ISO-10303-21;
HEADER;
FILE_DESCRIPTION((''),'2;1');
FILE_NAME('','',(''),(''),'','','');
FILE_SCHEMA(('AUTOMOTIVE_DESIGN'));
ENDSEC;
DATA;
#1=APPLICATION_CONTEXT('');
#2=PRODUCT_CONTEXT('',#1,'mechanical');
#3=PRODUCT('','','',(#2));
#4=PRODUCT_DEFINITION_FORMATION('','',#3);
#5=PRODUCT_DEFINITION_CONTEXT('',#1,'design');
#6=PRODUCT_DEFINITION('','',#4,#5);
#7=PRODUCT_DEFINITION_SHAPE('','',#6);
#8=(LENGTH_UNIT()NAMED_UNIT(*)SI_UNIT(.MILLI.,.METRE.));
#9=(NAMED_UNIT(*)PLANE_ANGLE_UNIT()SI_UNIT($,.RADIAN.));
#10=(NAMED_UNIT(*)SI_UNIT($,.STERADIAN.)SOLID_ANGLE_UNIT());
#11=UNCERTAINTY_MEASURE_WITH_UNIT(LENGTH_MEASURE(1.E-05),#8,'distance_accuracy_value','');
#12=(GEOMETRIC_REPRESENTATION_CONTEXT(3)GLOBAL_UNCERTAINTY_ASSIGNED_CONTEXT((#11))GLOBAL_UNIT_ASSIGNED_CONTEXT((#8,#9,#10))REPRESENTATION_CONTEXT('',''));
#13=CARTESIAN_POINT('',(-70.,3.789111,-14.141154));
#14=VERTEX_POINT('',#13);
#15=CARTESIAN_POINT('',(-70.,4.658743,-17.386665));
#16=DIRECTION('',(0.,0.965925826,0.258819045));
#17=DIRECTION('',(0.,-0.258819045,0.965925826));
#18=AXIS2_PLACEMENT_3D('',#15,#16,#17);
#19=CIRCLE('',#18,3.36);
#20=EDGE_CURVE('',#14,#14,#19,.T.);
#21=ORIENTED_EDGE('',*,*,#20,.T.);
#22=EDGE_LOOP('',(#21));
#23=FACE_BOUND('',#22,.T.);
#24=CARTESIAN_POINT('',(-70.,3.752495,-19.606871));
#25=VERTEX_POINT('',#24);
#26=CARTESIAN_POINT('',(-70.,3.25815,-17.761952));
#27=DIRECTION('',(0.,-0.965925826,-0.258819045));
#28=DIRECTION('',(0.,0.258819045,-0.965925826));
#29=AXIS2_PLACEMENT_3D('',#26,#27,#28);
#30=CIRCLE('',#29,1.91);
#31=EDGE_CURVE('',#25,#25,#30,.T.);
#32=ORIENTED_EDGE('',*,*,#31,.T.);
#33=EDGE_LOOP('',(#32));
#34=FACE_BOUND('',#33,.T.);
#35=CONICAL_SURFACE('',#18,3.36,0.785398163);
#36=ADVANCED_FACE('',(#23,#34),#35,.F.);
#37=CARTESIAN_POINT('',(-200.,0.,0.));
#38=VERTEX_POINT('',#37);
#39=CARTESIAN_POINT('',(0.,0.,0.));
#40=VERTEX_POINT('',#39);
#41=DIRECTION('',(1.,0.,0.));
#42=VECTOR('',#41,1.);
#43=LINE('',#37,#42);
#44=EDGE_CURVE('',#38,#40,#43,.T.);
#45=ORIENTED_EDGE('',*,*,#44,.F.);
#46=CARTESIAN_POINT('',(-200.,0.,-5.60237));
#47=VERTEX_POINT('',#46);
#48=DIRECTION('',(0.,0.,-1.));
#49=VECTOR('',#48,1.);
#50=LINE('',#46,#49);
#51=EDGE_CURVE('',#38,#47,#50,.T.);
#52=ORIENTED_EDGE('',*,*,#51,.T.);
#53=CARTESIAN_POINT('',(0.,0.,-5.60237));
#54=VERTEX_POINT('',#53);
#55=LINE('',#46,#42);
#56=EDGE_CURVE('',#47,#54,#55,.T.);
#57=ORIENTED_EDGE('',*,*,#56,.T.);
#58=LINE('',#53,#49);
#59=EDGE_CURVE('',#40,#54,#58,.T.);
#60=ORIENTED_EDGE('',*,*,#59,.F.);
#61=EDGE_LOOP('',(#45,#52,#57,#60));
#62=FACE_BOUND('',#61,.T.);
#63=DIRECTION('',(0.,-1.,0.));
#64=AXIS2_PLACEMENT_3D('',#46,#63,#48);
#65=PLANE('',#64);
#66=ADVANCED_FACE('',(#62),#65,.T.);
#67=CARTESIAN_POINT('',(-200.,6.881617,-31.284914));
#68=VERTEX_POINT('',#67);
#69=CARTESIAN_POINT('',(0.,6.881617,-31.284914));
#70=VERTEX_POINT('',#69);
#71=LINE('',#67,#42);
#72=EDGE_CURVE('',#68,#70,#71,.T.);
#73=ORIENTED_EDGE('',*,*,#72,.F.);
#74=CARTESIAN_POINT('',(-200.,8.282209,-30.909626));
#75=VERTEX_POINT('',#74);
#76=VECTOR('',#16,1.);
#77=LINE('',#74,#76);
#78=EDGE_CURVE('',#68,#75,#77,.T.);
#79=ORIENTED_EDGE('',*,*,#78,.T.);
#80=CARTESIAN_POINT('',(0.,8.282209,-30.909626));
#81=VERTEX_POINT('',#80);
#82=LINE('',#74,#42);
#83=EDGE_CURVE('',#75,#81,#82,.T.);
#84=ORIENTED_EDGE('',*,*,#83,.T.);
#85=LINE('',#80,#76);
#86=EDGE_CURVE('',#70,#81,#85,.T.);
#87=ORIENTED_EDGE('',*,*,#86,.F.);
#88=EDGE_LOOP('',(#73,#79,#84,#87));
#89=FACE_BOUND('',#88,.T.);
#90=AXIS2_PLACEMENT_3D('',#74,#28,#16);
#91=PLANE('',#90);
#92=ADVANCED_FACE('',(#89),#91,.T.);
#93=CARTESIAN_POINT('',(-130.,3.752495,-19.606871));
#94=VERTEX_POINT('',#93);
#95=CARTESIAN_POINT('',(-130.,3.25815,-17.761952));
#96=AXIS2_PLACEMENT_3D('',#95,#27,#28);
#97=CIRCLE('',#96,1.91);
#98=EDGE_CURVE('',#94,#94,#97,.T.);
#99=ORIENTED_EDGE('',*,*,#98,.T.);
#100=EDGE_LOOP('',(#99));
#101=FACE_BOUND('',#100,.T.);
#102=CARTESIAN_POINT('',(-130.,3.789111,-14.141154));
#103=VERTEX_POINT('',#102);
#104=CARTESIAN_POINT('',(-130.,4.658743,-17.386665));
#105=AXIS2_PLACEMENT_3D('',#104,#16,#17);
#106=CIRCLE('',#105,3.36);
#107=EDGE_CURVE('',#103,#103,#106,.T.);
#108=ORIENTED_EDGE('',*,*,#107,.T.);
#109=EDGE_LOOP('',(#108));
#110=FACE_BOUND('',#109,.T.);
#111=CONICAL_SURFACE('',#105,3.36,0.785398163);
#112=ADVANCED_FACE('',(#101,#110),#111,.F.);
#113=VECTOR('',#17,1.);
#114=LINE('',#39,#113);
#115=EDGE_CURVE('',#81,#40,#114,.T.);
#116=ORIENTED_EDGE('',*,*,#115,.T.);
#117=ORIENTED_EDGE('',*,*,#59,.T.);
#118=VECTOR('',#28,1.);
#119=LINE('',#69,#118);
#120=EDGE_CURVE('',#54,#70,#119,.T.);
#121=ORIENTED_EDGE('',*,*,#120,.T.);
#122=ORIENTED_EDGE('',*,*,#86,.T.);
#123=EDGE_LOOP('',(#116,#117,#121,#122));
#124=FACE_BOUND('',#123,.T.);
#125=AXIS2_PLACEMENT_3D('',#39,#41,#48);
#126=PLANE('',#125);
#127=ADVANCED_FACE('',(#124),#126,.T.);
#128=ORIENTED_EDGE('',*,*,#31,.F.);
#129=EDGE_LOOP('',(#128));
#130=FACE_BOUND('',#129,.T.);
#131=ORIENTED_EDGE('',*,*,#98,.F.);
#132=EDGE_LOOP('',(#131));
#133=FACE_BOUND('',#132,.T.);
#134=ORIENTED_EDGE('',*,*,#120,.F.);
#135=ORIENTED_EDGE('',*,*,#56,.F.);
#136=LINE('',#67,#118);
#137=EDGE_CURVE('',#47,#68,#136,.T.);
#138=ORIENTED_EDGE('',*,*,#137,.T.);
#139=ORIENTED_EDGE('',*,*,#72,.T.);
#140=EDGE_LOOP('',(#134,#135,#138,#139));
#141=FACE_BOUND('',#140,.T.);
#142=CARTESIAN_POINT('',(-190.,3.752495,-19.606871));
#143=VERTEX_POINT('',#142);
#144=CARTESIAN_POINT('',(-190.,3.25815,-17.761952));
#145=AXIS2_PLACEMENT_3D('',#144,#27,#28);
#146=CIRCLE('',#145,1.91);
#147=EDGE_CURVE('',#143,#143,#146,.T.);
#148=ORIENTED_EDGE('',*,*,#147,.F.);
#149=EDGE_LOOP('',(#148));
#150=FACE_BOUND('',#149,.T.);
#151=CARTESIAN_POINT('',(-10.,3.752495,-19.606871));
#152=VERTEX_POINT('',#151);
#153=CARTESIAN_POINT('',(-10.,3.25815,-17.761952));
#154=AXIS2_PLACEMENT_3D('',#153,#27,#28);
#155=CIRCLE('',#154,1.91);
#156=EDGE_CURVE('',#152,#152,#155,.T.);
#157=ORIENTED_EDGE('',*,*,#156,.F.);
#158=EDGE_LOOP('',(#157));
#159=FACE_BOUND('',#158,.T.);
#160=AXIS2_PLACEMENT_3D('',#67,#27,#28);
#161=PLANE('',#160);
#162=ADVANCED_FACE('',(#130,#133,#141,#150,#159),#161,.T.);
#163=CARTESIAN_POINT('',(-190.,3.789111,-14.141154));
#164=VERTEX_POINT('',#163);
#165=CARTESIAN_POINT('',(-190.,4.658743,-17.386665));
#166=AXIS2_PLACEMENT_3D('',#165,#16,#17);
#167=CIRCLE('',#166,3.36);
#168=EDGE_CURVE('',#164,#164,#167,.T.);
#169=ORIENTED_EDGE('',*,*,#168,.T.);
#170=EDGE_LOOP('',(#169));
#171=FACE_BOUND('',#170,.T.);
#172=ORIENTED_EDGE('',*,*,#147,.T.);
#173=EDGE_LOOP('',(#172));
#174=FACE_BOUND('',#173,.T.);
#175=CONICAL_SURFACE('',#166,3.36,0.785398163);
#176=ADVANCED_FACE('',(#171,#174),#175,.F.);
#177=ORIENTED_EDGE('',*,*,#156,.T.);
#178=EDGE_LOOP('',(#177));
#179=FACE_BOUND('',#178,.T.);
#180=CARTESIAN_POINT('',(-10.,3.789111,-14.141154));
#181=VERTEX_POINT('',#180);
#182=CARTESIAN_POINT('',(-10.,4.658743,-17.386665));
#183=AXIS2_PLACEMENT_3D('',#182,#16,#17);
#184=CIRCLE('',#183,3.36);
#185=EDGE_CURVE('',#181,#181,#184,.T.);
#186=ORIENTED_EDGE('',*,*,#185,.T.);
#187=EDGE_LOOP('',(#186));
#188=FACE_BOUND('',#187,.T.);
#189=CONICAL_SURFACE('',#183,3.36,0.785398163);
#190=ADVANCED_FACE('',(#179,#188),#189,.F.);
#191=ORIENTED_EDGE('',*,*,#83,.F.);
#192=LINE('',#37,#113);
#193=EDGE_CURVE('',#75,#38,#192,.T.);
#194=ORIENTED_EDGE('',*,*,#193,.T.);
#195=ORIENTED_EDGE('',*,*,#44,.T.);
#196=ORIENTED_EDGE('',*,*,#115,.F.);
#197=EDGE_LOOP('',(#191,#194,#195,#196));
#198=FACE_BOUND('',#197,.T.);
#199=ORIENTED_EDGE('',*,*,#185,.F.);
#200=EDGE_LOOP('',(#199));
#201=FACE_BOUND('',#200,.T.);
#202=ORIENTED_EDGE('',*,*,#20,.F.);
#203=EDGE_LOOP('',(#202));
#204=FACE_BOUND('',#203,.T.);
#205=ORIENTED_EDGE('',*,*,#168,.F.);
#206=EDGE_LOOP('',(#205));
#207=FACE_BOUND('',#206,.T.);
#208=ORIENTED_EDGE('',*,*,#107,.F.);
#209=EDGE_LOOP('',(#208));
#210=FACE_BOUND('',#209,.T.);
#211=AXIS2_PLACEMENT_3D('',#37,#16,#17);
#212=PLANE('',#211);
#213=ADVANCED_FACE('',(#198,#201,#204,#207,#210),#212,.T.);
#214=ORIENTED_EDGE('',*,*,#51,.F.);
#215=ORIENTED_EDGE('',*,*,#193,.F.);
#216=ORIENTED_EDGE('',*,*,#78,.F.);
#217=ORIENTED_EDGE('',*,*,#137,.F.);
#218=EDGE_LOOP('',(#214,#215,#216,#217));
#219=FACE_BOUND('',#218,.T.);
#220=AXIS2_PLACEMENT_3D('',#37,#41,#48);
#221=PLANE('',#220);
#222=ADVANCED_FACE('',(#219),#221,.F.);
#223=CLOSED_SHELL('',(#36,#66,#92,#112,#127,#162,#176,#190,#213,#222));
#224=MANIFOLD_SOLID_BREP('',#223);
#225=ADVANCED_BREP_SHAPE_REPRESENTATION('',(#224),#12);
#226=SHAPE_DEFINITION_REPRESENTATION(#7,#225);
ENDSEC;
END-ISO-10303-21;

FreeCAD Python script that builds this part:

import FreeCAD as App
import Part
import Sketcher
Q = App.Units.Quantity

doc = App.newDocument("Part")
body = doc.addObject("PartDesign::Body", "Body")

sketch1 = body.newObject("Sketcher::SketchObject", "Sketch")
sketch1.AttachmentSupport = (doc.getObject("YZ_Plane"), [""])
sketch1.MapMode = "FlatFace"
sketch1.addGeometry(Part.LineSegment(App.Vector(8.3, -30.9, 0), App.Vector(0, 0, 0)), False)
sketch1.addGeometry(Part.LineSegment(App.Vector(0, 0, 0), App.Vector(0, -5.6, 0)), False)
sketch1.addGeometry(Part.LineSegment(App.Vector(0, -5.6, 0), App.Vector(6.9, -31.3, 0)), False)
sketch1.addGeometry(Part.LineSegment(App.Vector(6.9, -31.3, 0), App.Vector(8.3, -30.9, 0)), False)
sketch1.addConstraint(Sketcher.Constraint("Coincident", 0, 2, 1, 1))
sketch1.addConstraint(Sketcher.Constraint("Coincident", 1, 2, 2, 1))
sketch1.addConstraint(Sketcher.Constraint("Coincident", 2, 2, 3, 1))
sketch1.addConstraint(Sketcher.Constraint("Coincident", 3, 2, 0, 1))
sketch1.addConstraint(Sketcher.Constraint("Vertical", 1))
sketch1.addConstraint(Sketcher.Constraint("Coincident", 0, 2, -1, 1))
sketch1.addConstraint(Sketcher.Constraint("Parallel", 0, 2))
sketch1.addConstraint(Sketcher.Constraint("Perpendicular", 2, 3))
sketch1.addConstraint(Sketcher.Constraint("Angle", 0, Q("105 deg")))
sketch1.addConstraint(Sketcher.Constraint("Distance", 0, Q("32 mm")))
sketch1.addConstraint(Sketcher.Constraint("Distance", 3, Q("1.45 mm")))
pad1 = body.newObject("PartDesign::Pad", "Pad")
pad1.Profile = sketch1
pad1.Length = 200
pad1.Reversed = True

sketch2 = body.newObject("Sketcher::SketchObject", "Sketch001")
sketch2.Placement = App.Placement(App.Vector(0, 0, 0), App.Rotation(App.Vector(1, 0, 0), App.Vector(0, 0.258819045, -0.965925826), App.Vector(0, 0.965925826, 0.258819045), "ZXY"))
sketch2.addGeometry(Part.Circle(App.Vector(-190, 18, 0), App.Vector(0, 0, 1), 1.7), False)
sketch2.addGeometry(Part.Circle(App.Vector(-130, 18, 0), App.Vector(0, 0, 1), 1.7), False)
sketch2.addGeometry(Part.Circle(App.Vector(-70, 18, 0), App.Vector(0, 0, 1), 1.7), False)
sketch2.addGeometry(Part.Circle(App.Vector(-10, 18, 0), App.Vector(0, 0, 1), 1.7), False)
sketch2.addConstraint(Sketcher.Constraint("Equal", 0, 1))
sketch2.addConstraint(Sketcher.Constraint("Equal", 1, 2))
sketch2.addConstraint(Sketcher.Constraint("Equal", 2, 3))
sketch2.addConstraint(Sketcher.Constraint("Horizontal", 0, 3, 1, 3))
sketch2.addConstraint(Sketcher.Constraint("Horizontal", 1, 3, 2, 3))
sketch2.addConstraint(Sketcher.Constraint("Horizontal", 2, 3, 3, 3))
sketch2.addConstraint(Sketcher.Constraint("Diameter", 0, Q("3.4 mm")))
sketch2.addConstraint(Sketcher.Constraint("DistanceX", 0, 3, -1, 1, Q("190 mm")))
sketch2.addConstraint(Sketcher.Constraint("DistanceY", -1, 1, 0, 3, Q("18 mm")))
sketch2.addConstraint(Sketcher.Constraint("DistanceX", 1, 3, -1, 1, Q("130 mm")))
sketch2.addConstraint(Sketcher.Constraint("DistanceX", 2, 3, -1, 1, Q("70 mm")))
sketch2.addConstraint(Sketcher.Constraint("DistanceX", 3, 3, -1, 1, Q("10 mm")))
doc.recompute()
hole = body.newObject("PartDesign::Hole", "Hole")
hole.Profile = sketch2
hole.ThreadType = "None"
hole.Diameter = 3.4
hole.DepthType = "ThroughAll"
hole.HoleCutType = "Countersink"
hole.HoleCutDiameter = 6.72
hole.HoleCutCountersinkAngle = 90

doc.recompute()
